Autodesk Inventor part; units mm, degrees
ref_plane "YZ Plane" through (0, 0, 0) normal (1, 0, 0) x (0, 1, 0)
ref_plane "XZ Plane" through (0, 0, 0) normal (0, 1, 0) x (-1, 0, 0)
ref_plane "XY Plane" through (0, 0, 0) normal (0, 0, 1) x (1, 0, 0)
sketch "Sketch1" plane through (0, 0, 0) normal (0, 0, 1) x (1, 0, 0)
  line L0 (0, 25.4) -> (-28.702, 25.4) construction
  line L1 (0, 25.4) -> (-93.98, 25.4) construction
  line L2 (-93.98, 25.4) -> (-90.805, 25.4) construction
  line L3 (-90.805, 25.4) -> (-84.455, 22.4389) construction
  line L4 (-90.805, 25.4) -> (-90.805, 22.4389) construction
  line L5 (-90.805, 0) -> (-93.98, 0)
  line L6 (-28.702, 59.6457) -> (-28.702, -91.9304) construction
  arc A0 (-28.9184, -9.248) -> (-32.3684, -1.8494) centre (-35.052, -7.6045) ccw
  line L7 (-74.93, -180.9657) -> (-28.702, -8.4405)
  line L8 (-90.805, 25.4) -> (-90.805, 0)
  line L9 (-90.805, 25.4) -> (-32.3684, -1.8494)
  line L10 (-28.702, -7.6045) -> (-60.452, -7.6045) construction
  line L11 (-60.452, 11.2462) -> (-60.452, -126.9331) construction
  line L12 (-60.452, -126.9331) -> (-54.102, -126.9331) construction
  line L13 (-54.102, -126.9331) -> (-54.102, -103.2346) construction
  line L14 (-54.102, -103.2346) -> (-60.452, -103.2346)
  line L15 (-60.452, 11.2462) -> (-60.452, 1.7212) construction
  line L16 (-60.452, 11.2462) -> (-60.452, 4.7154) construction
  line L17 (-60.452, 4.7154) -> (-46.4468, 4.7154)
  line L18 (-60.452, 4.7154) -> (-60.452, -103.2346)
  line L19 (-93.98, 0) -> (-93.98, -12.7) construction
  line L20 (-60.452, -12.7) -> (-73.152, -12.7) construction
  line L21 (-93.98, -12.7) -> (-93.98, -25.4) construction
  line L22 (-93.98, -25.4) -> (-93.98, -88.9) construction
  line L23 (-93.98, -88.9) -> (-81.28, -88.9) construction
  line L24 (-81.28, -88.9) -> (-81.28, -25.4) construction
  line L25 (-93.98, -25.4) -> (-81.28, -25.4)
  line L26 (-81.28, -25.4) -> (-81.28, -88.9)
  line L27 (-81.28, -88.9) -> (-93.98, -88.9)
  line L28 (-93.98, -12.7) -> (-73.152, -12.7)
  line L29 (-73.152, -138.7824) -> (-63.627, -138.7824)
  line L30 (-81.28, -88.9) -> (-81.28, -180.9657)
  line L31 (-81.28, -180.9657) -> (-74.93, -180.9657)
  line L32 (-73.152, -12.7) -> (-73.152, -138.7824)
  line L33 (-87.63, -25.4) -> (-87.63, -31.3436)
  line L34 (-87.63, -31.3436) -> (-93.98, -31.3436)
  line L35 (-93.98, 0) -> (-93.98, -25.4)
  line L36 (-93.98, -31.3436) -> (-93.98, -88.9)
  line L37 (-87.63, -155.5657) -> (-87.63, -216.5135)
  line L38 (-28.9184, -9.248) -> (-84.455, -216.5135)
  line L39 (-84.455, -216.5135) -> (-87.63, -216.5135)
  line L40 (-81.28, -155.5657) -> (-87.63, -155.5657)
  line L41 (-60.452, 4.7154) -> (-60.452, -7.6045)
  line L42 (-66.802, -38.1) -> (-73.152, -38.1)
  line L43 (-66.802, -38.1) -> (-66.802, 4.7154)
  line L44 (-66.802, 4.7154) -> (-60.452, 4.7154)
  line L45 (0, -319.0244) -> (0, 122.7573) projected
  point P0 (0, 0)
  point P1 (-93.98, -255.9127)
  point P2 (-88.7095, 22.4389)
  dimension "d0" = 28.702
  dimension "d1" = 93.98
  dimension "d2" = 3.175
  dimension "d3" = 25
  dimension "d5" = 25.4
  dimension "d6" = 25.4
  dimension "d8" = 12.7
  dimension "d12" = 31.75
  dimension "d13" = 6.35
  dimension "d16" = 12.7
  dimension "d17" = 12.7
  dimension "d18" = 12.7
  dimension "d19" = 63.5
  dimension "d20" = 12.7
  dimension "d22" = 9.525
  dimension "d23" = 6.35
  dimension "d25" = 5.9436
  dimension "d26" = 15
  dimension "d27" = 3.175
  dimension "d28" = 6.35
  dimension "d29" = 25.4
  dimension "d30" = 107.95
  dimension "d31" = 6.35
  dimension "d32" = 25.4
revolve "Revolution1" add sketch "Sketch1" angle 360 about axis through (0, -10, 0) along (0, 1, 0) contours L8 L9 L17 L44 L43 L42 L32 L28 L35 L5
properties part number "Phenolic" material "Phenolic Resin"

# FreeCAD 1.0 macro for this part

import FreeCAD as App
import Part
import Sketcher
Q = App.Units.Quantity

doc = App.newDocument("Part")
body = doc.addObject("PartDesign::Body", "Body")

# Sketch on XY plane
sketch1 = body.newObject("Sketcher::SketchObject", "Sketch")
sketch1.AttachmentSupport = (doc.getObject("XY_Plane"), [""])
sketch1.MapMode = "FlatFace"
sketch1.addGeometry(Part.LineSegment(App.Vector(-90.8, 25.4, 0), App.Vector(-90.8, 0, 0)), False)
sketch1.addGeometry(Part.LineSegment(App.Vector(-90.8, 0, 0), App.Vector(-94, 0, 0)), False)
sketch1.addGeometry(Part.LineSegment(App.Vector(-94, 0, 0), App.Vector(-94, -12.7, 0)), False)
sketch1.addGeometry(Part.LineSegment(App.Vector(-94, -12.7, 0), App.Vector(-73.2, -12.7, 0)), False)
sketch1.addGeometry(Part.LineSegment(App.Vector(-73.2, -12.7, 0), App.Vector(-73.2, -38.1, 0)), False)
sketch1.addGeometry(Part.LineSegment(App.Vector(-73.2, -38.1, 0), App.Vector(-66.8, -38.1, 0)), False)
sketch1.addGeometry(Part.LineSegment(App.Vector(-66.8, -38.1, 0), App.Vector(-66.8, 4.7, 0)), False)
sketch1.addGeometry(Part.LineSegment(App.Vector(-66.8, 4.7, 0), App.Vector(-46.4, 4.7, 0)), False)
sketch1.addGeometry(Part.LineSegment(App.Vector(-46.4, 4.7, 0), App.Vector(-90.8, 25.4, 0)), False)
sketch1.addConstraint(Sketcher.Constraint("Coincident", 0, 2, 1, 1))
sketch1.addConstraint(Sketcher.Constraint("Coincident", 1, 2, 2, 1))
sketch1.addConstraint(Sketcher.Constraint("Coincident", 2, 2, 3, 1))
sketch1.addConstraint(Sketcher.Constraint("Coincident", 3, 2, 4, 1))
sketch1.addConstraint(Sketcher.Constraint("Coincident", 4, 2, 5, 1))
sketch1.addConstraint(Sketcher.Constraint("Coincident", 5, 2, 6, 1))
sketch1.addConstraint(Sketcher.Constraint("Coincident", 6, 2, 7, 1))
sketch1.addConstraint(Sketcher.Constraint("Coincident", 7, 2, 8, 1))
sketch1.addConstraint(Sketcher.Constraint("Coincident", 8, 2, 0, 1))
sketch1.addConstraint(Sketcher.Constraint("Vertical", 0))
sketch1.addConstraint(Sketcher.Constraint("Horizontal", 1))
sketch1.addConstraint(Sketcher.Constraint("Vertical", 2))
sketch1.addConstraint(Sketcher.Constraint("Horizontal", 3))
sketch1.addConstraint(Sketcher.Constraint("Vertical", 4))
sketch1.addConstraint(Sketcher.Constraint("Horizontal", 5))
sketch1.addConstraint(Sketcher.Constraint("Vertical", 6))
sketch1.addConstraint(Sketcher.Constraint("Horizontal", 7))
sketch1.addConstraint(Sketcher.Constraint("PointOnObject", 0, 2, -1))
sketch1.addConstraint(Sketcher.Constraint("Equal", 0, 4))
sketch1.addConstraint(Sketcher.Constraint("DistanceY", 0, 2, 0, 1, Q("1 in")))
sketch1.addConstraint(Sketcher.Constraint("DistanceY", 2, 2, 2, 1, Q("0.5 in")))
sketch1.addConstraint(Sketcher.Constraint("DistanceX", 5, 1, 5, 2, Q("0.25 in")))
sketch1.addConstraint(Sketcher.Constraint("DistanceX", 1, 2, -1, 1, Q("3.7 in")))
sketch1.addConstraint(Sketcher.Constraint("DistanceX", 1, 2, 1, 1, Q("0.125 in")))
sketch1.addConstraint(Sketcher.Constraint("Angle", 8, Q("155 deg")))
sketch1.addConstraint(Sketcher.Constraint("DistanceX", 3, 1, 3, 2, Q("0.82 in")))
sketch1.addConstraint(Sketcher.Constraint("DistanceX", 7, 1, 7, 2, 20.3552))
revolution = body.newObject("PartDesign::Revolution", "Revolution")
revolution.Profile = sketch1
revolution.ReferenceAxis = (sketch1, ["V_Axis"])
revolution.Angle = 360

doc.recompute()
